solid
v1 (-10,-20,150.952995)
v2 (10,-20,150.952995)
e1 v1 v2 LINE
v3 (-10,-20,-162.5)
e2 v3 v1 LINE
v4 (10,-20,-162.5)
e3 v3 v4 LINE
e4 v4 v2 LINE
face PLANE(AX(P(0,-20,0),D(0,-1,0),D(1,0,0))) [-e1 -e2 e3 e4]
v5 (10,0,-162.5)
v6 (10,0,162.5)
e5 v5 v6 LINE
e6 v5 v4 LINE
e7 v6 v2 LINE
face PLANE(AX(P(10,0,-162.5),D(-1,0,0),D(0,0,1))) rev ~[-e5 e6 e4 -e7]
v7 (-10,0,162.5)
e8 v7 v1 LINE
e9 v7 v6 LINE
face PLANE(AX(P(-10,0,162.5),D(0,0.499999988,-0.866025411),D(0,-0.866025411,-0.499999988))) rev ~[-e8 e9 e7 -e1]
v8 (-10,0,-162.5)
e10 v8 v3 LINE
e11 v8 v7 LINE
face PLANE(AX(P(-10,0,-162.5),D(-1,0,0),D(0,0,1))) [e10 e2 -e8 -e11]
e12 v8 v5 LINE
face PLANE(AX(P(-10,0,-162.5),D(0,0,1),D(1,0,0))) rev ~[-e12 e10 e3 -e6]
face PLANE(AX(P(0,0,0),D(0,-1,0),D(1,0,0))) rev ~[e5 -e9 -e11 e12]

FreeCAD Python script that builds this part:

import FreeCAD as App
import Part
import Sketcher
from FreeCAD import Vector
Q = App.Units.Quantity


def add_polygon(sketch, points):
    """Adds a closed chain of lines whose ends are joined by coincident constraints."""
    first, n = sketch.GeometryCount, len(points)
    for a, b in zip(points, points[1:] + points[:1]):
        sketch.addGeometry(Part.LineSegment(App.Vector(*a, 0), App.Vector(*b, 0)), False)
    for i in range(n):
        sketch.addConstraint(Sketcher.Constraint("Coincident", first + i, 2, first + (i + 1) % n, 1))

doc = App.newDocument("Part")
body = doc.addObject("PartDesign::Body", "Body")

# Sketch on XZ plane
sketch1 = body.newObject("Sketcher::SketchObject", "Sketch")
sketch1.AttachmentSupport = (doc.getObject("XZ_Plane"), [""])
sketch1.MapMode = "FlatFace"
add_polygon(sketch1, [(-10, 162), (-10, -162), (10, -162), (10, 162)])  # lines 0-3
sketch1.addConstraint([
    Sketcher.Constraint("Vertical", 0),
    Sketcher.Constraint("Horizontal", 1),
    Sketcher.Constraint("Vertical", 2),
    Sketcher.Constraint("Horizontal", 3),
    Sketcher.Constraint("Symmetric", 0, 2, 2, 2, -1, 1),
    Sketcher.Constraint("DistanceX", 1, 1, 1, 2, Q("20 mm")),
    Sketcher.Constraint("DistanceY", 0, 2, 0, 1, Q("325 mm")),
])
pad1 = body.newObject("PartDesign::Pad", "Pad")
pad1.Profile = sketch1
pad1.Length = 20

# Sketch on YZ plane
sketch2 = body.newObject("Sketcher::SketchObject", "Sketch001")
sketch2.AttachmentSupport = (doc.getObject("YZ_Plane"), [""])
sketch2.MapMode = "FlatFace"
sketch2.AttachmentOffset = App.Placement(Vector(0, 0, -10), App.Rotation())
add_polygon(sketch2, [(-20, 162), (0, 162), (-20, 151)])  # lines 0-2
sketch2.addConstraint([
    Sketcher.Constraint("Horizontal", 0),
    Sketcher.Constraint("Vertical", 2),
    Sketcher.Constraint("PointOnObject", 0, 2, -2),
    Sketcher.Constraint("DistanceX", 0, 1, 0, 2, Q("20 mm")),
    Sketcher.Constraint("Angle", 1, Q("-150.000001 deg")),
    Sketcher.Constraint("DistanceY", -1, 1, 0, 2, Q("162.5 mm")),
])
pocket1 = body.newObject("PartDesign::Pocket", "Pocket")
pocket1.Profile = sketch2
pocket1.Type = "ThroughAll"
pocket1.Reversed = True

doc.recompute()
